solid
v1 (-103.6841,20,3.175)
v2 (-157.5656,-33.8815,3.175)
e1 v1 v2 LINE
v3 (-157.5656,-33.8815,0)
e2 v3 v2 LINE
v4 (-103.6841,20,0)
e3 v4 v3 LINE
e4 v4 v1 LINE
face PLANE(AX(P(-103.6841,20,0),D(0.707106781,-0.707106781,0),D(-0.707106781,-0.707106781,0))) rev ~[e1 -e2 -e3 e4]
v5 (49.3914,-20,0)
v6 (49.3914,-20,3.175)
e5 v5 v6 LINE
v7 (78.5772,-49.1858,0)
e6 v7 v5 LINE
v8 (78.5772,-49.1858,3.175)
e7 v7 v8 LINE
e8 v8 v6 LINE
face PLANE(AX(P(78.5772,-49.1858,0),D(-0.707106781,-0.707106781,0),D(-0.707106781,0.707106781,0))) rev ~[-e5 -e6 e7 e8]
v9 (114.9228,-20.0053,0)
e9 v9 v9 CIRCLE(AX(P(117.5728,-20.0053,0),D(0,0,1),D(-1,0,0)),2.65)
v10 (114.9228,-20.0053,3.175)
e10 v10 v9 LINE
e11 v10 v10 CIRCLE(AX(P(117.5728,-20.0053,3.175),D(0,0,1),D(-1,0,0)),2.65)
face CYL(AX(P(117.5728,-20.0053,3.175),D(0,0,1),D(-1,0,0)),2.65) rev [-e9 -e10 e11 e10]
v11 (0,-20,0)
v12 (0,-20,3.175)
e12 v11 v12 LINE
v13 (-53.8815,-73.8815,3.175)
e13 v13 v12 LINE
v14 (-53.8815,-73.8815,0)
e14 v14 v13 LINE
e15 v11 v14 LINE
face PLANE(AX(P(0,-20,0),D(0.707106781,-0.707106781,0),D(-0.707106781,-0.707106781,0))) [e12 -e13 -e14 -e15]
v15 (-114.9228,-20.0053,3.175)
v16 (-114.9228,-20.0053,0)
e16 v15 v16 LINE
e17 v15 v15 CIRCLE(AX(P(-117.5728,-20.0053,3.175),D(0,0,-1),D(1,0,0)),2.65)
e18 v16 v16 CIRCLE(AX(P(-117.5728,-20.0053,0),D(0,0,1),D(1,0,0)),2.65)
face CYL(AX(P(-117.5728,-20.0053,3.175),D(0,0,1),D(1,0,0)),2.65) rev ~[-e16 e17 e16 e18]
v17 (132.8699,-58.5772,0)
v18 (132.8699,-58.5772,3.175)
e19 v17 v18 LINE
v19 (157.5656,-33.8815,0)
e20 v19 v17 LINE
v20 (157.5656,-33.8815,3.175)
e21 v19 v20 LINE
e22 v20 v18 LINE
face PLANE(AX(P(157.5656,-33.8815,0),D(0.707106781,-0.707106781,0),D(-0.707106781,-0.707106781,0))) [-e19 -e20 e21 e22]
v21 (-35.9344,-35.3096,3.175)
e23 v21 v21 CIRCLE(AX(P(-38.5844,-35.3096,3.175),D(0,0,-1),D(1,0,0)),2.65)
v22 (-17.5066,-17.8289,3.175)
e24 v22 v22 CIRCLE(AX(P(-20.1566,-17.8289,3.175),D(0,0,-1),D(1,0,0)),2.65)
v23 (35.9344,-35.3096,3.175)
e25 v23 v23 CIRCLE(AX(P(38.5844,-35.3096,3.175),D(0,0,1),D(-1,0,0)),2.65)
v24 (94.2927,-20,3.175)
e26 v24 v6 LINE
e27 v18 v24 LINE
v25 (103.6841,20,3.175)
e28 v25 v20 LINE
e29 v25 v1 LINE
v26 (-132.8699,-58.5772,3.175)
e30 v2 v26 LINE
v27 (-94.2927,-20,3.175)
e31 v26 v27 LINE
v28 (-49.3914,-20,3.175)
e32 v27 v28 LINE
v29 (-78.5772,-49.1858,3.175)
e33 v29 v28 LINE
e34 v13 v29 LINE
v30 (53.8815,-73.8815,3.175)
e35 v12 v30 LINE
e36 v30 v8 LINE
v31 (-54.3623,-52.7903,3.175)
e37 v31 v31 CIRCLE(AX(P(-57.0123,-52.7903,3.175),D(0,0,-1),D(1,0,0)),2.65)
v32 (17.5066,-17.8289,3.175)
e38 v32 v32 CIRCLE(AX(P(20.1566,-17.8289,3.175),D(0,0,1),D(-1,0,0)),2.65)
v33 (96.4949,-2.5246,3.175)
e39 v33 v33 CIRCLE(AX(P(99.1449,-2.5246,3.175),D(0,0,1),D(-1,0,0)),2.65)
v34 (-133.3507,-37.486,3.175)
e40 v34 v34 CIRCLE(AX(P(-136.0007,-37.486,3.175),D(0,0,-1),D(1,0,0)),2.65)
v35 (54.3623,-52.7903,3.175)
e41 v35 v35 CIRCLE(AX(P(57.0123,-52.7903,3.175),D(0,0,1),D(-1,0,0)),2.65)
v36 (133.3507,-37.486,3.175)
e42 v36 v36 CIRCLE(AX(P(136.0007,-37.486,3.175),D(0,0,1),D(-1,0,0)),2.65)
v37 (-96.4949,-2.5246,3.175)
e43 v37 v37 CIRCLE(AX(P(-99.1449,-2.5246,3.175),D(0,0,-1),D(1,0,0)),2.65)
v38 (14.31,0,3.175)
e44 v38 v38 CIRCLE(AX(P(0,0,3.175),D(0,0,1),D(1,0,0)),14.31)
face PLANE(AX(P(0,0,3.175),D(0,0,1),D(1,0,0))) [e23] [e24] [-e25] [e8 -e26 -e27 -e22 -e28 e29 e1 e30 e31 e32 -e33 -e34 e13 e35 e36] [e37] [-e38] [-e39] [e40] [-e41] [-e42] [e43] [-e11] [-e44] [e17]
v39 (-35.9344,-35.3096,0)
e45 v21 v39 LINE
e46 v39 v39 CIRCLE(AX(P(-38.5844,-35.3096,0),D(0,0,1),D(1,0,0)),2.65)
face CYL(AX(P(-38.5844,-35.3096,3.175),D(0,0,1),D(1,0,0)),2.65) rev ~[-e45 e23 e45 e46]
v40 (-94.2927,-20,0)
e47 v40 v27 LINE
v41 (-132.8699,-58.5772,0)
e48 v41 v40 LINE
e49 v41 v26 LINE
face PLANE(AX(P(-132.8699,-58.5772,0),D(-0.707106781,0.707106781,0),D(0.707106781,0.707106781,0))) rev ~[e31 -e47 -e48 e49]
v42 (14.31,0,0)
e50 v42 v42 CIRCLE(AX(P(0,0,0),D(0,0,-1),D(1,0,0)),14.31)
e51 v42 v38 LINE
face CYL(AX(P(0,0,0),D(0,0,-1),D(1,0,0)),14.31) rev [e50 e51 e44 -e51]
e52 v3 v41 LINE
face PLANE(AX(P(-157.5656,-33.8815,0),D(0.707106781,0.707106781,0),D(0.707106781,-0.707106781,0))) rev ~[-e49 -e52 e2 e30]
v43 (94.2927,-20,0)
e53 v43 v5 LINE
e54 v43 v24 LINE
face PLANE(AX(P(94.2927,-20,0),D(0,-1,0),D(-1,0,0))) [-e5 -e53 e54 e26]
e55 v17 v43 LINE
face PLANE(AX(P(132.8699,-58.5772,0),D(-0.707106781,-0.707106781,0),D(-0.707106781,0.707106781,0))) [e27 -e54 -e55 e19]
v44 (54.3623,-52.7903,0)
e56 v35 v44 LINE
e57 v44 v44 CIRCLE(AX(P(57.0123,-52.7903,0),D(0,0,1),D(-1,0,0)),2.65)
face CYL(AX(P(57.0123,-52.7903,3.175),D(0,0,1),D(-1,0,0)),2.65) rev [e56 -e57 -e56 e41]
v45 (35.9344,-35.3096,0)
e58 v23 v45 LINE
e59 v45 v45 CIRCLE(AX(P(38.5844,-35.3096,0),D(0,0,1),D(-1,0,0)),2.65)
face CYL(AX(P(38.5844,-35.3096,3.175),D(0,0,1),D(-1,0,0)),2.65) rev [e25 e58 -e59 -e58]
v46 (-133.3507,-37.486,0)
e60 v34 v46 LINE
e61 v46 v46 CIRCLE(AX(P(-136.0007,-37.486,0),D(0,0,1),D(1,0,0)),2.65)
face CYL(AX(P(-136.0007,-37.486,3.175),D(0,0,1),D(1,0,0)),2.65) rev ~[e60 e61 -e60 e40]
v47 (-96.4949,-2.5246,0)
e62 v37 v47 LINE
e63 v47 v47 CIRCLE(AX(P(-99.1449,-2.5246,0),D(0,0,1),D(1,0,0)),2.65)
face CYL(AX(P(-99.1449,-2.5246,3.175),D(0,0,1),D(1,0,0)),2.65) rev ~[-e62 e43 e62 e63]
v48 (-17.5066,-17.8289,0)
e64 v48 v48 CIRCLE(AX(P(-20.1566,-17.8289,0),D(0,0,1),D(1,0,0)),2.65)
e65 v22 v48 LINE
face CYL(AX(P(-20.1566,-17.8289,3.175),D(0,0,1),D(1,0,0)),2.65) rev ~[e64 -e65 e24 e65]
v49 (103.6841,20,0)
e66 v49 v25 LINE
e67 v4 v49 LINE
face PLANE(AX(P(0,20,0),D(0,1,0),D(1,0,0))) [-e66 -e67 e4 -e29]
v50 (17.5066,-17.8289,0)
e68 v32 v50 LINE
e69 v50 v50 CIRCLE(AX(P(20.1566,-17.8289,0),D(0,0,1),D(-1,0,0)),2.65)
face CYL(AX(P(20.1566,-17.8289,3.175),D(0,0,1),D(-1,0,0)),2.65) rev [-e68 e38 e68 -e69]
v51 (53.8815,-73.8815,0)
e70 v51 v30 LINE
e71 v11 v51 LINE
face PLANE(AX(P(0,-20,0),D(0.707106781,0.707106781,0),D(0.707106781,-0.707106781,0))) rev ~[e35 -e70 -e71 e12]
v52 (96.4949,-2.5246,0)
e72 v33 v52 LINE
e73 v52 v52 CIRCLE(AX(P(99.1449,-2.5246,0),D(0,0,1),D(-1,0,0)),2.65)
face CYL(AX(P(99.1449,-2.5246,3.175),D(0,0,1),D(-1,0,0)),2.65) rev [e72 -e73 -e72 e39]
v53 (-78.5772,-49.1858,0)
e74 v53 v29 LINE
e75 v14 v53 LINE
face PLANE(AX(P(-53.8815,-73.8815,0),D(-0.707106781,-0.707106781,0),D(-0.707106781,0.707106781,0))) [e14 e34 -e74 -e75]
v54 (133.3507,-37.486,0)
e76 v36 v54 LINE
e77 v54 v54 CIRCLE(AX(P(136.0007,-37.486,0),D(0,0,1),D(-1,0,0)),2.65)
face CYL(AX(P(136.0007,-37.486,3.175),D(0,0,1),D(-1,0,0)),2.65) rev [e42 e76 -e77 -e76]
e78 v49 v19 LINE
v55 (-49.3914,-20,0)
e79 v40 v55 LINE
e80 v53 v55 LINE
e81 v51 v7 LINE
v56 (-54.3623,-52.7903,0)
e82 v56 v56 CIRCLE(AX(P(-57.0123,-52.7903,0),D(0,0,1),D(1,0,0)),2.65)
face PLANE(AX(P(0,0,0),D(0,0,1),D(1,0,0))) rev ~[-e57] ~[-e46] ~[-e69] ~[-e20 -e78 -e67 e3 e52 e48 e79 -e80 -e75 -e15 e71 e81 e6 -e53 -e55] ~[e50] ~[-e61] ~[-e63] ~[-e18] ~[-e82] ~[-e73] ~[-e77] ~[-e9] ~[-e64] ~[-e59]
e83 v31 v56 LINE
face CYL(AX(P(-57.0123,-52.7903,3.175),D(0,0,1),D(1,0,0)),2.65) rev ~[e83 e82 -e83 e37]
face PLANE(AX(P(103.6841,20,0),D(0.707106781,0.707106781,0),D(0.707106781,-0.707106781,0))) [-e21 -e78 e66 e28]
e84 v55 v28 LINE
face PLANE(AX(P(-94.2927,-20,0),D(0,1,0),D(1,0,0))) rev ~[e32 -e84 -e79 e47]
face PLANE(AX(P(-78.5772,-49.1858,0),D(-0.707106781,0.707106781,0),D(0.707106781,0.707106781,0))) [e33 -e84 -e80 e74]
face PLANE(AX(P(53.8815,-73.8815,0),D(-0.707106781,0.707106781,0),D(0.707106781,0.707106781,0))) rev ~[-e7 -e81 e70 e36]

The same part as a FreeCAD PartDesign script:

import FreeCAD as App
import Part
import Sketcher
from FreeCAD import Vector
Q = App.Units.Quantity

doc = App.newDocument("Part")
body = doc.addObject("PartDesign::Body", "Body")

sketch1 = body.newObject("Sketcher::SketchObject", "Sketch")
sketch1.AttachmentSupport = (doc.getObject("XY_Plane"), [""])
sketch1.MapMode = "FlatFace"
sketch1.addGeometry([
    Part.LineSegment(Vector(103.6841, 20, 0), Vector(-103.6841, 20, 0)),
    Part.LineSegment(Vector(-103.6841, 20, 0), Vector(-157.5656, -33.8815, 0)),
    Part.LineSegment(Vector(-157.5656, -33.8815, 0), Vector(-132.8699, -58.5772, 0)),
    Part.LineSegment(Vector(-132.8699, -58.5772, 0), Vector(-94.2927, -20, 0)),
    Part.LineSegment(Vector(-94.2927, -20, 0), Vector(-49.3914, -20, 0)),
    Part.LineSegment(Vector(-49.3914, -20, 0), Vector(-78.5772, -49.1858, 0)),
    Part.LineSegment(Vector(-78.5772, -49.1858, 0), Vector(-53.8815, -73.8815, 0)),
    Part.LineSegment(Vector(-53.8815, -73.8815, 0), Vector(0, -20, 0)),
    Part.LineSegment(Vector(0, -20, 0), Vector(53.8815, -73.8815, 0)),
    Part.LineSegment(Vector(53.8815, -73.8815, 0), Vector(78.5772, -49.1858, 0)),
    Part.LineSegment(Vector(78.5772, -49.1858, 0), Vector(49.3914, -20, 0)),
    Part.LineSegment(Vector(49.3914, -20, 0), Vector(94.2927, -20, 0)),
    Part.LineSegment(Vector(94.2927, -20, 0), Vector(132.8699, -58.5772, 0)),
    Part.LineSegment(Vector(132.8699, -58.5772, 0), Vector(157.5656, -33.8815, 0)),
    Part.LineSegment(Vector(157.5656, -33.8815, 0), Vector(103.6841, 20, 0)),
    Part.Circle(Vector(0, 0, 0), Vector(0, 0, 1), 14.31),
], False)
sketch1.addConstraint([
    Sketcher.Constraint("Coincident", 0, 2, 1, 1),
    Sketcher.Constraint("Coincident", 1, 2, 2, 1),
    Sketcher.Constraint("Coincident", 2, 2, 3, 1),
    Sketcher.Constraint("Coincident", 3, 2, 4, 1),
    Sketcher.Constraint("Coincident", 4, 2, 5, 1),
    Sketcher.Constraint("Coincident", 5, 2, 6, 1),
    Sketcher.Constraint("Coincident", 6, 2, 7, 1),
    Sketcher.Constraint("Coincident", 7, 2, 8, 1),
    Sketcher.Constraint("Coincident", 8, 2, 9, 1),
    Sketcher.Constraint("Coincident", 9, 2, 10, 1),
    Sketcher.Constraint("Coincident", 10, 2, 11, 1),
    Sketcher.Constraint("Coincident", 11, 2, 12, 1),
    Sketcher.Constraint("Coincident", 12, 2, 13, 1),
    Sketcher.Constraint("Coincident", 13, 2, 14, 1),
    Sketcher.Constraint("Coincident", 14, 2, 0, 1),
    Sketcher.Constraint("Horizontal", 0),
    Sketcher.Constraint("Horizontal", 4),
    Sketcher.Constraint("Horizontal", 11),
    Sketcher.Constraint("Coincident", 15, 3, -1, 1),
    Sketcher.Constraint("Symmetric", 6, 2, 8, 2, -2),
    Sketcher.Constraint("Symmetric", 5, 2, 9, 2, -2),
    Sketcher.Constraint("Symmetric", 4, 2, 10, 2, -2),
    Sketcher.Constraint("Symmetric", 2, 2, 12, 2, -2),
    Sketcher.Constraint("Symmetric", 1, 2, 13, 2, -2),
    Sketcher.Constraint("PointOnObject", 7, 2, -2),
    Sketcher.Constraint("Perpendicular", 1, 2),
    Sketcher.Constraint("Perpendicular", 2, 3),
    Sketcher.Constraint("Parallel", 3, 5),
    Sketcher.Constraint("Perpendicular", 5, 6),
    Sketcher.Constraint("Perpendicular", 6, 7),
    Sketcher.Constraint("Perpendicular", 7, 8),
    Sketcher.Constraint("Parallel", 10, 12),
    Sketcher.Constraint("Perpendicular", 13, 14),
    Sketcher.Constraint("Horizontal", 4, 2, 7, 2),
    Sketcher.Constraint("Equal", 2, 6),
    Sketcher.Constraint("Equal", 1, 7),
    Sketcher.Constraint("Distance", 1, Q("3 in")),
    Sketcher.Constraint("Diameter", 15, 28.62),
    Sketcher.Constraint("Distance", 2, Q("1.375 in")),
    Sketcher.Constraint("DistanceY", -1, 1, 0, 2, Q("0.7874 in")),
    Sketcher.Constraint("DistanceY", 3, 2, -1, 1, Q("0.7874 in")),
    Sketcher.Constraint("DistanceX", 0, 2, 0, 1, Q("8.1641 in")),
])
pad1 = body.newObject("PartDesign::Pad", "Pad")
pad1.Profile = sketch1
pad1.Length = Q("0.125 in")

sketch2 = body.newObject("Sketcher::SketchObject", "Sketch001")
sketch2.AttachmentSupport = (doc.getObject("XY_Plane"), [""])
sketch2.MapMode = "FlatFace"
sketch2.AttachmentOffset = App.Placement(Vector(0, 0, 0.125 * 25.4), App.Rotation())
sketch2.addGeometry([
    Part.Circle(Vector(-57.0123, -52.7903, 0), Vector(0, 0, 1), 2.65),
    Part.Circle(Vector(-38.5844, -35.3096, 0), Vector(0, 0, 1), 2.65),
    Part.Circle(Vector(-20.1566, -17.8289, 0), Vector(0, 0, 1), 2.65),
    Part.Circle(Vector(-99.1449, -2.5246, 0), Vector(0, 0, 1), 2.65),
    Part.Circle(Vector(-136.0007, -37.486, 0), Vector(0, 0, 1), 2.65),
    Part.Circle(Vector(-117.5728, -20.0053, 0), Vector(0, 0, 1), 2.65),
], False)
sketch2.addConstraint([
    Sketcher.Constraint("Equal", 0, 1),
    Sketcher.Constraint("Equal", 1, 2),
    Sketcher.Constraint("Equal", 2, 3),
    Sketcher.Constraint("Equal", 3, 4),
    Sketcher.Constraint("Equal", 4, 5),
    Sketcher.Constraint("Diameter", 0, 5.3),
    Sketcher.Constraint("DistanceX", 0, 3, 2, 3, Q("1.451 in")),
    Sketcher.Constraint("DistanceY", 3, 3, -1, 1, Q("0.0994 in")),
    Sketcher.Constraint("DistanceY", 5, 3, -1, 1, Q("0.7876 in")),
    Sketcher.Constraint("DistanceX", 0, 3, 1, 3, Q("0.7255 in")),
    Sketcher.Constraint("DistanceX", 4, 3, 2, 3, Q("4.5608 in")),
    Sketcher.Constraint("DistanceY", 4, 3, 2, 3, Q("0.7739 in")),
    Sketcher.Constraint("DistanceX", 5, 3, 3, 3, Q("0.7255 in")),
    Sketcher.Constraint("DistanceX", 4, 3, 5, 3, Q("0.7255 in")),
    Sketcher.Constraint("DistanceX", 0, 3, -1, 1, 57.0123),
    Sketcher.Constraint("DistanceY", 0, 3, -1, 1, 52.7903),
    Sketcher.Constraint("DistanceY", 1, 3, -1, 1, 35.3096),
    Sketcher.Constraint("DistanceY", 2, 3, -1, 1, 17.829),
])
pocket1 = body.newObject("PartDesign::Pocket", "Pocket")
pocket1.Profile = sketch2
pocket1.Length = Q("1 in")
doc.recompute()

mirrored = body.newObject("PartDesign::Mirrored", "Mirrored")
mirrored.Originals = [pocket1]
mirrored.MirrorPlane = (doc.getObject("YZ_Plane"), [""])
body.Tip = mirrored

doc.recompute()
